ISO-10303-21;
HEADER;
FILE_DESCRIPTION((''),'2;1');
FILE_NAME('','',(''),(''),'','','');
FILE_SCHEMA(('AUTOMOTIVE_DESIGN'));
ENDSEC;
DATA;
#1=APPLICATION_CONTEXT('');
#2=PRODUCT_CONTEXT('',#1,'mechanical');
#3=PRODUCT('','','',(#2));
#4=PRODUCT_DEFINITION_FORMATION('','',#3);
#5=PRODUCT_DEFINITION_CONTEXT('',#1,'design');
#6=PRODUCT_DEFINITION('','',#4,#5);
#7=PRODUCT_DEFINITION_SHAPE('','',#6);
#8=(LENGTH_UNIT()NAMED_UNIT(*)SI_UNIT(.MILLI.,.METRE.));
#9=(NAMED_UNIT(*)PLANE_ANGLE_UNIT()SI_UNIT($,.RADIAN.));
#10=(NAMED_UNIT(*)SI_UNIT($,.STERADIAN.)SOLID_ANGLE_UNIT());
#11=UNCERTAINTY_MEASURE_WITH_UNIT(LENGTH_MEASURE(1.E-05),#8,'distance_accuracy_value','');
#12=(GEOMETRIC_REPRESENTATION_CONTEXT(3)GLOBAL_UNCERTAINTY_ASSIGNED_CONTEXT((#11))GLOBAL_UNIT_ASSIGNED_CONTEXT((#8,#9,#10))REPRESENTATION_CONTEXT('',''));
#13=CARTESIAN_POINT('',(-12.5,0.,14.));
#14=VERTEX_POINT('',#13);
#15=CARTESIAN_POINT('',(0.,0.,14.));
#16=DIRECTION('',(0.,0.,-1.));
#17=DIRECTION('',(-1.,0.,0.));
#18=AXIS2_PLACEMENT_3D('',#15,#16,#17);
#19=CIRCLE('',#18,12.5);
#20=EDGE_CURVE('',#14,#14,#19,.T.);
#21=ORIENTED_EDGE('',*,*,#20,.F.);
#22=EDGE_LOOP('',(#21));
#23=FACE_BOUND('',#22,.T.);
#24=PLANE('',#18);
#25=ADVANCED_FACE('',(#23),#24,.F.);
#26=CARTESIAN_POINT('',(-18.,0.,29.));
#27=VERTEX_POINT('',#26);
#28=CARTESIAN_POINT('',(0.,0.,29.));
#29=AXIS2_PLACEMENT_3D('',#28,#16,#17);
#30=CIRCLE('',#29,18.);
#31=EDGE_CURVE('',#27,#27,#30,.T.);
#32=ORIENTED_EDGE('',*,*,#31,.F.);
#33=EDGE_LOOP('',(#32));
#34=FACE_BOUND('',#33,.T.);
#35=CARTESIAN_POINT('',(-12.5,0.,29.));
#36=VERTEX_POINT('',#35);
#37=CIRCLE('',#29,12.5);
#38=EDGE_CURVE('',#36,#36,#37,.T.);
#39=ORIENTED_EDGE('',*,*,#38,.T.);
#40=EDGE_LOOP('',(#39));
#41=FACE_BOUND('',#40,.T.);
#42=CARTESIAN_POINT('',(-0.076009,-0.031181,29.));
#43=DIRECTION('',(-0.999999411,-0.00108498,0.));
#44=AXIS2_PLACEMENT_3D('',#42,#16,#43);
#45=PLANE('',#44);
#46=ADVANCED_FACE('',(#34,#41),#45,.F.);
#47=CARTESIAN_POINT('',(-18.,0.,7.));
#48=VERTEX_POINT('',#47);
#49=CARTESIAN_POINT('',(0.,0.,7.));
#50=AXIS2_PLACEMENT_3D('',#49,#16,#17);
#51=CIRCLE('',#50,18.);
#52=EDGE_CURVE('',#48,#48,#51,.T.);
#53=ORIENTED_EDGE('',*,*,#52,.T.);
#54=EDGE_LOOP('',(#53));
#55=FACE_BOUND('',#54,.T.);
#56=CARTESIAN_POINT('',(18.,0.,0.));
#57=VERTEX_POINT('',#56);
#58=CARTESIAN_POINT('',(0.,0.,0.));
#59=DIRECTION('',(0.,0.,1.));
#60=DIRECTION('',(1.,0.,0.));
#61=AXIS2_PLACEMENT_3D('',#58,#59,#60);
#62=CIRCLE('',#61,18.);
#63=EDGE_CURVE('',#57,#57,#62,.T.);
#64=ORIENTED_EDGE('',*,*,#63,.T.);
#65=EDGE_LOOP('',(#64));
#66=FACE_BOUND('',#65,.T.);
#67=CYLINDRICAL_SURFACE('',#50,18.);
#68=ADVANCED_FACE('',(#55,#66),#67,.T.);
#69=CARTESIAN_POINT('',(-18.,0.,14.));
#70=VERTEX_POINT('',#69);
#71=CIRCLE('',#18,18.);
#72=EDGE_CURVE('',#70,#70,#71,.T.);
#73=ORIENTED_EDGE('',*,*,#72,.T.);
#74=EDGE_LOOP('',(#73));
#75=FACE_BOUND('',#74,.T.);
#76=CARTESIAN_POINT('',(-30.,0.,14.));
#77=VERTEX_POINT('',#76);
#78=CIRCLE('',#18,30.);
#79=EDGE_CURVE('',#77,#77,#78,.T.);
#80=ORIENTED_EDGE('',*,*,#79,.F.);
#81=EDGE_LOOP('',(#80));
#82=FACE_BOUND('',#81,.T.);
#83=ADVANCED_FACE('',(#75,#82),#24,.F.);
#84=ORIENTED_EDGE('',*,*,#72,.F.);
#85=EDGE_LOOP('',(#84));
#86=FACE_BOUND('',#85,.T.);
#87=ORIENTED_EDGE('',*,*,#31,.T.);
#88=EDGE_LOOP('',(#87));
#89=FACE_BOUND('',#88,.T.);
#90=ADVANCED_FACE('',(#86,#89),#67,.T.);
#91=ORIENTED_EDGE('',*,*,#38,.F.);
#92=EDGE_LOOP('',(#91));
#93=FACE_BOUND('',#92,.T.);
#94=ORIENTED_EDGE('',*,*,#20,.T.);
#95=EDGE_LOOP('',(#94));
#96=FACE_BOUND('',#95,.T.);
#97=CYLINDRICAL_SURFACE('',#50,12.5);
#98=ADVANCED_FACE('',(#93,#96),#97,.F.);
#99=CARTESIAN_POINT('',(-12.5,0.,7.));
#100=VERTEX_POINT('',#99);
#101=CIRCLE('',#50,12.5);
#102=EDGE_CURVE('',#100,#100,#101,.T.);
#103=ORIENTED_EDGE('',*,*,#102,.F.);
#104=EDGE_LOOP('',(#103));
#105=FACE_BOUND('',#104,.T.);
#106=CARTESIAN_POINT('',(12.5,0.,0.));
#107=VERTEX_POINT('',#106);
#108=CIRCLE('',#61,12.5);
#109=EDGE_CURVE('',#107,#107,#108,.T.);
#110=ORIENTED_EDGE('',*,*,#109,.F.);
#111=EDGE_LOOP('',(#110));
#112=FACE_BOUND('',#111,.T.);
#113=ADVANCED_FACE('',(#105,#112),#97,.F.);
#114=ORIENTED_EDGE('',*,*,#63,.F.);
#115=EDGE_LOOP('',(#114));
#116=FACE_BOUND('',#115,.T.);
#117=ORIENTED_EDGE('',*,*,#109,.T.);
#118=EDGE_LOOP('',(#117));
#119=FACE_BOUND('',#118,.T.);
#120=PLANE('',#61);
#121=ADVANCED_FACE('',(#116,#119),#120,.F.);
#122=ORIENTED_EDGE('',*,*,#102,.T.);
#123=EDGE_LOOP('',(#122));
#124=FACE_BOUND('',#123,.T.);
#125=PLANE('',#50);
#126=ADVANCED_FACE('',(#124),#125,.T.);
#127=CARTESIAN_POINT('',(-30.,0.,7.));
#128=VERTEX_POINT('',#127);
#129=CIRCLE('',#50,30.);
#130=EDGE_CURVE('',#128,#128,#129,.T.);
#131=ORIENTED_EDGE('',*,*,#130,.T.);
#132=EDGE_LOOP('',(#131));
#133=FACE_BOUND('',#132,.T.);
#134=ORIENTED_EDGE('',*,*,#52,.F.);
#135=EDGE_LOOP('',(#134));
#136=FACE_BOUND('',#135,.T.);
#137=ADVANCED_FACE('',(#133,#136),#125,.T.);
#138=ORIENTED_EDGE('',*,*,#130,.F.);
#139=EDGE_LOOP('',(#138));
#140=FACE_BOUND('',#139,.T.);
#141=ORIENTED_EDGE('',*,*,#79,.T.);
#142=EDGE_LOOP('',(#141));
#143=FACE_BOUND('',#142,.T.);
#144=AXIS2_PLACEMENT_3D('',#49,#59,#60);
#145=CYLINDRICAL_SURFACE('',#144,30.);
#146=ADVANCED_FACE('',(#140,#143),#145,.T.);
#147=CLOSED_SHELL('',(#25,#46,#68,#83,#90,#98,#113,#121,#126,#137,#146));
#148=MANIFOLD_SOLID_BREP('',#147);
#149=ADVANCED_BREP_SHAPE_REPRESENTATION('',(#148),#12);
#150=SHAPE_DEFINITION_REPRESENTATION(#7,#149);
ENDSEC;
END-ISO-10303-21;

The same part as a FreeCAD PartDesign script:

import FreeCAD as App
import Part
import Sketcher

doc = App.newDocument("Part")
body = doc.addObject("PartDesign::Body", "Body")

sketch1 = body.newObject("Sketcher::SketchObject", "Sketch")
sketch1.AttachmentSupport = (doc.getObject("XY_Plane"), [""])
sketch1.MapMode = "FlatFace"
sketch1.addGeometry([
    Part.Circle(App.Vector(0, 0, 0), App.Vector(0, 0, 1), 18),
    Part.Circle(App.Vector(0, 0, 0), App.Vector(0, 0, 1), 12),
], False)
sketch1.addConstraint([
    Sketcher.Constraint("Coincident", 0, 3, -1, 1),
    Sketcher.Constraint("Coincident", 1, 3, -1, 1),
    Sketcher.Constraint("Diameter", 0, 36.0),
    Sketcher.Constraint("Diameter", 1, 25.0),
])
pad1 = body.newObject("PartDesign::Pad", "Pad")
pad1.Profile = sketch1
pad1.Length = 7

sketch2 = body.newObject("Sketcher::SketchObject", "Sketch001")
sketch2.AttachmentSupport = (doc.getObject("XY_Plane"), [""])
sketch2.MapMode = "FlatFace"
sketch2.AttachmentOffset = App.Placement(App.Vector(0, 0, 7), App.Rotation())
sketch2.addGeometry([
    Part.Circle(App.Vector(0, 0, 0), App.Vector(0, 0, 1), 18),
    Part.Circle(App.Vector(0, 0, 0), App.Vector(0, 0, 1), 12),
], False)
sketch2.addConstraint([
    Sketcher.Constraint("Coincident", 0, 3, -1, 1),
    Sketcher.Constraint("Coincident", 1, 3, -1, 1),
    Sketcher.Constraint("Diameter", 0, 36.0),
    Sketcher.Constraint("Diameter", 1, 25.0),
])
pad2 = body.newObject("PartDesign::Pad", "Pad001")
pad2.Profile = sketch2
pad2.Length = 22

sketch3 = body.newObject("Sketcher::SketchObject", "Sketch002")
sketch3.AttachmentSupport = (doc.getObject("XY_Plane"), [""])
sketch3.MapMode = "FlatFace"
sketch3.AttachmentOffset = App.Placement(App.Vector(0, 0, 14), App.Rotation())
sketch3.addGeometry(Part.Circle(App.Vector(0, 0, 0), App.Vector(0, 0, 1), 30), False)
sketch3.addConstraint([
    Sketcher.Constraint("Coincident", 0, 3, -1, 1),
    Sketcher.Constraint("Diameter", 0, 60.0),
])
pad3 = body.newObject("PartDesign::Pad", "Pad002")
pad3.Profile = sketch3
pad3.Length = 7
pad3.Reversed = True

doc.recompute()
